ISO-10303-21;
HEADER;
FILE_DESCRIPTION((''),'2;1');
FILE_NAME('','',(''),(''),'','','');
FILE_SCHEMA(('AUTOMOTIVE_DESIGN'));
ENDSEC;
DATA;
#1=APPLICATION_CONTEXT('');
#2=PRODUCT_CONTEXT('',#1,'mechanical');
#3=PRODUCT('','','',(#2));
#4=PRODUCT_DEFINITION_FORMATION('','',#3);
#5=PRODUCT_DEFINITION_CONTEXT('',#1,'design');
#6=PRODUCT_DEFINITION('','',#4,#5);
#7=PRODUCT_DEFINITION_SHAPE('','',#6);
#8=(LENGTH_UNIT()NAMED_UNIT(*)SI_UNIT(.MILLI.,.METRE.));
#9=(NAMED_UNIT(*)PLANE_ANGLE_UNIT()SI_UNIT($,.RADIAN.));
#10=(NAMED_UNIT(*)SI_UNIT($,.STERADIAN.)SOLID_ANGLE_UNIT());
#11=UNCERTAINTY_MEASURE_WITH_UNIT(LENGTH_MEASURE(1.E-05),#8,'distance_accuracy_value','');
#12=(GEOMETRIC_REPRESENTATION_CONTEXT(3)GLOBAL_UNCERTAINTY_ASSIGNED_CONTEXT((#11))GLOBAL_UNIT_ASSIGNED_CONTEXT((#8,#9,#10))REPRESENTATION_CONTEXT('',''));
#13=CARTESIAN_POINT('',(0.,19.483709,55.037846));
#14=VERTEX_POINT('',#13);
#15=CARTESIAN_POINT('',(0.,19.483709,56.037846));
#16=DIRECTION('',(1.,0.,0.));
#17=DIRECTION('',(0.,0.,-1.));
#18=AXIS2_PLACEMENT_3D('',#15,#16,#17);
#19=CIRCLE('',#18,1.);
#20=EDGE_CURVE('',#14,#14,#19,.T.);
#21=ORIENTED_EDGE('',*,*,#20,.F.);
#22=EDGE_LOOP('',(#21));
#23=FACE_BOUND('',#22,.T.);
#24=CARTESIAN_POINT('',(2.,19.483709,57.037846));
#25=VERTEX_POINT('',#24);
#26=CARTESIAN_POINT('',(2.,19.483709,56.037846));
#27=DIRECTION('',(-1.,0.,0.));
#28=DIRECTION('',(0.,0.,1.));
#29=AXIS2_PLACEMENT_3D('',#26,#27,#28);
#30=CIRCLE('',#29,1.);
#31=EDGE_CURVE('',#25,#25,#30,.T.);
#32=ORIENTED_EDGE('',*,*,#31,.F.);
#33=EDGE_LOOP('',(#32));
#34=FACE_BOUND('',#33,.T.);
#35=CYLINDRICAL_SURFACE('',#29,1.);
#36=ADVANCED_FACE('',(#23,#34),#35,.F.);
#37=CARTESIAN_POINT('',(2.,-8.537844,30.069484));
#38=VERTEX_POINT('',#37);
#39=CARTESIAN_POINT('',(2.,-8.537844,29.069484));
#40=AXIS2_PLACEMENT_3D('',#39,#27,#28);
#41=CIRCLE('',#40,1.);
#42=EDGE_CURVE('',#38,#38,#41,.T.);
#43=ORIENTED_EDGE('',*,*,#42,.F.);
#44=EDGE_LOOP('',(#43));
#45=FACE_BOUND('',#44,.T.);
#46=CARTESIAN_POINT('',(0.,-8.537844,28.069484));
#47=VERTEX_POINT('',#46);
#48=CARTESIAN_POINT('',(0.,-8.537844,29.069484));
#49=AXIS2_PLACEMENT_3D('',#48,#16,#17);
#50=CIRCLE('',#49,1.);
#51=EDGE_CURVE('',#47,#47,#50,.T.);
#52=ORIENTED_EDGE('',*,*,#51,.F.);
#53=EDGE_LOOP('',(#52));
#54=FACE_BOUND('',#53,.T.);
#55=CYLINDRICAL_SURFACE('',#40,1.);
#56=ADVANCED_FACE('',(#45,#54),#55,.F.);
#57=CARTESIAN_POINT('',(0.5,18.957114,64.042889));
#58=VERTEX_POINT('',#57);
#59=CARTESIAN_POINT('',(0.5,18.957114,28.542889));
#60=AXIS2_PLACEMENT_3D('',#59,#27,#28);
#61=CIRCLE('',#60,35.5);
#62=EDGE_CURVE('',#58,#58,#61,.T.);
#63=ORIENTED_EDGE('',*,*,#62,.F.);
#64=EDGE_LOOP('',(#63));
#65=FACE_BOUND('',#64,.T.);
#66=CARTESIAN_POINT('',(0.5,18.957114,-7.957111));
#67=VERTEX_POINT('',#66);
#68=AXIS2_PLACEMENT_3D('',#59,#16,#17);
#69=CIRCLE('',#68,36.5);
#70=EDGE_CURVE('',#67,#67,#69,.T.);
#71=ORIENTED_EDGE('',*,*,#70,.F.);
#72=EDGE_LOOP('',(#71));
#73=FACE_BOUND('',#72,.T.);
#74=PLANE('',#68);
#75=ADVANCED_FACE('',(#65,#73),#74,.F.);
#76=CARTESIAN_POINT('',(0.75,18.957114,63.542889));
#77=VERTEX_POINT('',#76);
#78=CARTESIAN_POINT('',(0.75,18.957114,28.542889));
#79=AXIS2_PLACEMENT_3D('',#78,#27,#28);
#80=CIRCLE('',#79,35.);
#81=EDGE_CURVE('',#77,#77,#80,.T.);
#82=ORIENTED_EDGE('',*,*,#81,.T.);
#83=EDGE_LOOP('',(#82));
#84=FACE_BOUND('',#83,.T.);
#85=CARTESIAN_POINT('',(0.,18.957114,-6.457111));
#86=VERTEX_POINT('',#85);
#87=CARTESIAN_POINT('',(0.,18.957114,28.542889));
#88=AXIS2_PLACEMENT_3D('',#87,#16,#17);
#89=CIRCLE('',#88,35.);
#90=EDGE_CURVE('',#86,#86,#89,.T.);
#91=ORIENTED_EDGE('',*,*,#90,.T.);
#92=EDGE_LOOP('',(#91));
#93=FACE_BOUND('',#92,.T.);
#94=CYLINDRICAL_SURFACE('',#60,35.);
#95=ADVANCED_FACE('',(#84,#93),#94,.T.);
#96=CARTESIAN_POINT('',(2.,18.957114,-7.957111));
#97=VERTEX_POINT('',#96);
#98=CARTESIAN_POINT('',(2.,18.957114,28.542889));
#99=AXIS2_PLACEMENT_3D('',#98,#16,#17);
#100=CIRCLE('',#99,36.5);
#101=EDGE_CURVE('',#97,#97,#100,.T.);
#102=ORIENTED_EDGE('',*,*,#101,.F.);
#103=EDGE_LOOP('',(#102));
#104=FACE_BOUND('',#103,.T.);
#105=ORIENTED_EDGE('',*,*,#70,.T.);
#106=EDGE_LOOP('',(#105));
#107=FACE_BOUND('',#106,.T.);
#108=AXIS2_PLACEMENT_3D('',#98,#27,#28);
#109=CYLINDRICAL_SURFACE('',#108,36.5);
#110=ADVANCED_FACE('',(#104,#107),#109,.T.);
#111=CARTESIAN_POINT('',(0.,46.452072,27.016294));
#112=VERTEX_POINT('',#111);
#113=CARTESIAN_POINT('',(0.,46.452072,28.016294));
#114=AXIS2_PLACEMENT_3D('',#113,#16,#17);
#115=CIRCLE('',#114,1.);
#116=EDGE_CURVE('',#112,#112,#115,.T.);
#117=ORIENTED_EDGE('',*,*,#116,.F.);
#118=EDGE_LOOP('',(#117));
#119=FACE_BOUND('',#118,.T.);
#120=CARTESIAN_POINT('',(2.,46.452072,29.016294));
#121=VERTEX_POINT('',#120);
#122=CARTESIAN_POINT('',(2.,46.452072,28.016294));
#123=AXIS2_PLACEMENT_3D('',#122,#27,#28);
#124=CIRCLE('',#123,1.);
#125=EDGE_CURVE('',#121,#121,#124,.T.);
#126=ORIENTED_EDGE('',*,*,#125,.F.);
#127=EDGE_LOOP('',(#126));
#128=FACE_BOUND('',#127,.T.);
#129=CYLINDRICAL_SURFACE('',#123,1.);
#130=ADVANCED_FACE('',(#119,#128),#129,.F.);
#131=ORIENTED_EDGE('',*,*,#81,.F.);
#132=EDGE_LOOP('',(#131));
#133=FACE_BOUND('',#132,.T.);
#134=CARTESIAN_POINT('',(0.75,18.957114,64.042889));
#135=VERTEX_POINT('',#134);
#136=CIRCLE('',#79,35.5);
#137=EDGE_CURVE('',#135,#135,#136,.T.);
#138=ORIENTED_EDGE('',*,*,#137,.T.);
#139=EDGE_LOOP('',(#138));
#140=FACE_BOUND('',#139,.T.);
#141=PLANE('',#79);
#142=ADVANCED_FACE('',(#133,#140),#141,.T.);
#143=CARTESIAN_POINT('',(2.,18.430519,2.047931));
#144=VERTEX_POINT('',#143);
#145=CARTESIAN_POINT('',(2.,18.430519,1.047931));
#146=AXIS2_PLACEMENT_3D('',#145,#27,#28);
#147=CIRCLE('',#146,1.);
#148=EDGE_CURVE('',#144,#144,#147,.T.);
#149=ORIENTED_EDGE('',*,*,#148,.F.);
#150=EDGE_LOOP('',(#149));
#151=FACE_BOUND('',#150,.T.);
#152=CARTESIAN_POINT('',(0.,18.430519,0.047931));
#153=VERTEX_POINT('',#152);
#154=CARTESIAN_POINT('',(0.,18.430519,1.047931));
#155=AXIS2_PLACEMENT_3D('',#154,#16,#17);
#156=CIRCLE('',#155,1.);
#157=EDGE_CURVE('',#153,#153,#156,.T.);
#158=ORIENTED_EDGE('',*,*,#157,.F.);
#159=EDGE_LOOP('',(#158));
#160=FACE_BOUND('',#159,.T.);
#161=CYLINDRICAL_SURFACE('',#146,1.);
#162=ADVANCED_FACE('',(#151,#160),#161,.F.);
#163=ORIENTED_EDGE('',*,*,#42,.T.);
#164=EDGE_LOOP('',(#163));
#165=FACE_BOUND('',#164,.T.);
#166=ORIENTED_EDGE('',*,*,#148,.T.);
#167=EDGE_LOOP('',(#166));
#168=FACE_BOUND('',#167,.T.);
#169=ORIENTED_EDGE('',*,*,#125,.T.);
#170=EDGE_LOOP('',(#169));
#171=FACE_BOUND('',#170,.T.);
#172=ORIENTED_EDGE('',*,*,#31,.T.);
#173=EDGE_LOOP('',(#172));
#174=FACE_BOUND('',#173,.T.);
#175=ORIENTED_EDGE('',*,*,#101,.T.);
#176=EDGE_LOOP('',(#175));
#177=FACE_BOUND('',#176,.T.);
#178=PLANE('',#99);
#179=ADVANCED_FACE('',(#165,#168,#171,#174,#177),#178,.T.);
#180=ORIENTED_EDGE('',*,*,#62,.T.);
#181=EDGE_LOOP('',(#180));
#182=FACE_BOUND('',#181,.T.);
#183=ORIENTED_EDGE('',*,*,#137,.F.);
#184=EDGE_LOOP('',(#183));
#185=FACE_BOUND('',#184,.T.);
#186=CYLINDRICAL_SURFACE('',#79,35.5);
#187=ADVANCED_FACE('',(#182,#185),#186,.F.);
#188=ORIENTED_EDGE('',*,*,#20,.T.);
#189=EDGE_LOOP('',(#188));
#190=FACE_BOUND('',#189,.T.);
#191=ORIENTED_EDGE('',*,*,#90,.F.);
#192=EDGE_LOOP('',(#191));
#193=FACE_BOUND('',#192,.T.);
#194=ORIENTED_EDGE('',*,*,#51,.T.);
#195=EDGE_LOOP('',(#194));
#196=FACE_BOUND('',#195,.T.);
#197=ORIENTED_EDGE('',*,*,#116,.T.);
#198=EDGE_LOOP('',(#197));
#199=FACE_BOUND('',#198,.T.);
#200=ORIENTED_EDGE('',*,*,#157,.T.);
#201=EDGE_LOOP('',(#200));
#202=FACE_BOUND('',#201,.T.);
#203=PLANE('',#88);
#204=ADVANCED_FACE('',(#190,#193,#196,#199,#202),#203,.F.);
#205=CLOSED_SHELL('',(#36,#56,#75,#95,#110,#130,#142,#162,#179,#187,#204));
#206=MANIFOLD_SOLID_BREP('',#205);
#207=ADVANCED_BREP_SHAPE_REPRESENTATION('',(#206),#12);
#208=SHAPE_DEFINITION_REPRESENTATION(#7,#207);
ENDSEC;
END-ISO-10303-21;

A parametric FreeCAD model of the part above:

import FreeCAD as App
import Part
import Sketcher

V = App.Vector
Q = App.Units.Quantity

doc = App.newDocument("Part")
body = doc.addObject("PartDesign::Body", "Body")

# Sketch on YZ plane
sketch1 = body.newObject("Sketcher::SketchObject", "Sketch")
sketch1.AttachmentSupport = (doc.getObject("YZ_Plane"), [""])
sketch1.MapMode = "FlatFace"
sketch1.addGeometry(Part.Circle(V(18.957114, 28.542889, 0), V(0, 0, 1), 36.5), False)
sketch1.addConstraint([
    Sketcher.Constraint("Diameter", 0, Q("73 mm")),
    Sketcher.Constraint("DistanceY", -1, 1, 0, 3, Q("28.542889 mm")),
    Sketcher.Constraint("DistanceX", -1, 1, 0, 3, Q("18.957114 mm")),
])
pad1 = body.newObject("PartDesign::Pad", "Pad")
pad1.Profile = sketch1
pad1.Length = 2

# Sketch on YZ plane
sketch2 = body.newObject("Sketcher::SketchObject", "Sketch001")
sketch2.AttachmentSupport = (doc.getObject("YZ_Plane"), [""])
sketch2.MapMode = "FlatFace"
sketch2.AttachmentOffset = App.Placement(V(0, 0, -11.5), App.Rotation())
sketch2.addGeometry([
    Part.Circle(V(19.483709, 56.037846, 0), V(0, 0, 1), 1),
    Part.Circle(V(18.430519, 1.047931, 0), V(0, 0, 1), 1),
    Part.Circle(V(-8.537844, 29.069484, 0), V(0, 0, 1), 1),
    Part.Circle(V(46.452072, 28.016294, 0), V(0, 0, 1), 1),
], False)
sketch2.addConstraint([
    Sketcher.Constraint("Equal", 0, 1),
    Sketcher.Constraint("Equal", 1, 2),
    Sketcher.Constraint("Equal", 2, 3),
    Sketcher.Constraint("Diameter", 0, Q("2 mm")),
    Sketcher.Constraint("DistanceX", -1, 1, 0, 3, Q("19.483709 mm")),
    Sketcher.Constraint("DistanceX", -1, 1, 1, 3, Q("18.430519 mm")),
    Sketcher.Constraint("DistanceY", -1, 1, 1, 3, Q("1.047931 mm")),
    Sketcher.Constraint("DistanceX", -1, 1, 3, 3, Q("46.452072 mm")),
    Sketcher.Constraint("DistanceY", 3, 3, 2, 3, Q("1.05319 mm")),
    Sketcher.Constraint("DistanceY", -1, 1, 0, 3, Q("56.037846 mm")),
    Sketcher.Constraint("DistanceX", 2, 3, -1, 1, Q("8.537844 mm")),
    Sketcher.Constraint("DistanceY", -1, 1, 2, 3, Q("29.069484 mm")),
])
pocket1 = body.newObject("PartDesign::Pocket", "Pocket")
pocket1.Profile = sketch2
pocket1.Type = "ThroughAll"
pocket1.Reversed = True

# Sketch on YZ plane
sketch3 = body.newObject("Sketcher::SketchObject", "Sketch002")
sketch3.AttachmentSupport = (doc.getObject("YZ_Plane"), [""])
sketch3.MapMode = "FlatFace"
sketch3.addGeometry([
    Part.Circle(V(18.957114, 28.542889, 0), V(0, 0, 1), 36.5),
    Part.Circle(V(18.957114, 28.542889, 0), V(0, 0, 1), 35),
], False)
sketch3.addConstraint([
    Sketcher.Constraint("Coincident", 1, 3, 0, 3),
    Sketcher.Constraint("Diameter", 0, Q("73 mm")),
    Sketcher.Constraint("Diameter", 1, Q("70 mm")),
    Sketcher.Constraint("DistanceY", -1, 1, 0, 3, Q("28.542889 mm")),
    Sketcher.Constraint("DistanceX", -1, 1, 0, 3, Q("18.957114 mm")),
])
pocket2 = body.newObject("PartDesign::Pocket", "Pocket001")
pocket2.Profile = sketch3
pocket2.Length = 0.5
pocket2.Reversed = True

# Sketch on YZ plane
sketch4 = body.newObject("Sketcher::SketchObject", "Sketch003")
sketch4.AttachmentSupport = (doc.getObject("YZ_Plane"), [""])
sketch4.MapMode = "FlatFace"
sketch4.AttachmentOffset = App.Placement(V(0, 0, 0.5), App.Rotation())
sketch4.addGeometry([
    Part.Circle(V(18.957114, 28.542889, 0), V(0, 0, 1), 35.5),
    Part.Circle(V(18.957114, 28.542889, 0), V(0, 0, 1), 35),
], False)
sketch4.addConstraint([
    Sketcher.Constraint("Coincident", 1, 3, 0, 3),
    Sketcher.Constraint("Diameter", 0, Q("71 mm")),
    Sketcher.Constraint("Diameter", 1, Q("70 mm")),
    Sketcher.Constraint("DistanceY", -1, 1, 0, 3, Q("28.542889 mm")),
    Sketcher.Constraint("DistanceX", -1, 1, 0, 3, Q("18.957114 mm")),
])
pocket3 = body.newObject("PartDesign::Pocket", "Pocket002")
pocket3.Profile = sketch4
pocket3.Length = 0.25
pocket3.Reversed = True

doc.recompute()
